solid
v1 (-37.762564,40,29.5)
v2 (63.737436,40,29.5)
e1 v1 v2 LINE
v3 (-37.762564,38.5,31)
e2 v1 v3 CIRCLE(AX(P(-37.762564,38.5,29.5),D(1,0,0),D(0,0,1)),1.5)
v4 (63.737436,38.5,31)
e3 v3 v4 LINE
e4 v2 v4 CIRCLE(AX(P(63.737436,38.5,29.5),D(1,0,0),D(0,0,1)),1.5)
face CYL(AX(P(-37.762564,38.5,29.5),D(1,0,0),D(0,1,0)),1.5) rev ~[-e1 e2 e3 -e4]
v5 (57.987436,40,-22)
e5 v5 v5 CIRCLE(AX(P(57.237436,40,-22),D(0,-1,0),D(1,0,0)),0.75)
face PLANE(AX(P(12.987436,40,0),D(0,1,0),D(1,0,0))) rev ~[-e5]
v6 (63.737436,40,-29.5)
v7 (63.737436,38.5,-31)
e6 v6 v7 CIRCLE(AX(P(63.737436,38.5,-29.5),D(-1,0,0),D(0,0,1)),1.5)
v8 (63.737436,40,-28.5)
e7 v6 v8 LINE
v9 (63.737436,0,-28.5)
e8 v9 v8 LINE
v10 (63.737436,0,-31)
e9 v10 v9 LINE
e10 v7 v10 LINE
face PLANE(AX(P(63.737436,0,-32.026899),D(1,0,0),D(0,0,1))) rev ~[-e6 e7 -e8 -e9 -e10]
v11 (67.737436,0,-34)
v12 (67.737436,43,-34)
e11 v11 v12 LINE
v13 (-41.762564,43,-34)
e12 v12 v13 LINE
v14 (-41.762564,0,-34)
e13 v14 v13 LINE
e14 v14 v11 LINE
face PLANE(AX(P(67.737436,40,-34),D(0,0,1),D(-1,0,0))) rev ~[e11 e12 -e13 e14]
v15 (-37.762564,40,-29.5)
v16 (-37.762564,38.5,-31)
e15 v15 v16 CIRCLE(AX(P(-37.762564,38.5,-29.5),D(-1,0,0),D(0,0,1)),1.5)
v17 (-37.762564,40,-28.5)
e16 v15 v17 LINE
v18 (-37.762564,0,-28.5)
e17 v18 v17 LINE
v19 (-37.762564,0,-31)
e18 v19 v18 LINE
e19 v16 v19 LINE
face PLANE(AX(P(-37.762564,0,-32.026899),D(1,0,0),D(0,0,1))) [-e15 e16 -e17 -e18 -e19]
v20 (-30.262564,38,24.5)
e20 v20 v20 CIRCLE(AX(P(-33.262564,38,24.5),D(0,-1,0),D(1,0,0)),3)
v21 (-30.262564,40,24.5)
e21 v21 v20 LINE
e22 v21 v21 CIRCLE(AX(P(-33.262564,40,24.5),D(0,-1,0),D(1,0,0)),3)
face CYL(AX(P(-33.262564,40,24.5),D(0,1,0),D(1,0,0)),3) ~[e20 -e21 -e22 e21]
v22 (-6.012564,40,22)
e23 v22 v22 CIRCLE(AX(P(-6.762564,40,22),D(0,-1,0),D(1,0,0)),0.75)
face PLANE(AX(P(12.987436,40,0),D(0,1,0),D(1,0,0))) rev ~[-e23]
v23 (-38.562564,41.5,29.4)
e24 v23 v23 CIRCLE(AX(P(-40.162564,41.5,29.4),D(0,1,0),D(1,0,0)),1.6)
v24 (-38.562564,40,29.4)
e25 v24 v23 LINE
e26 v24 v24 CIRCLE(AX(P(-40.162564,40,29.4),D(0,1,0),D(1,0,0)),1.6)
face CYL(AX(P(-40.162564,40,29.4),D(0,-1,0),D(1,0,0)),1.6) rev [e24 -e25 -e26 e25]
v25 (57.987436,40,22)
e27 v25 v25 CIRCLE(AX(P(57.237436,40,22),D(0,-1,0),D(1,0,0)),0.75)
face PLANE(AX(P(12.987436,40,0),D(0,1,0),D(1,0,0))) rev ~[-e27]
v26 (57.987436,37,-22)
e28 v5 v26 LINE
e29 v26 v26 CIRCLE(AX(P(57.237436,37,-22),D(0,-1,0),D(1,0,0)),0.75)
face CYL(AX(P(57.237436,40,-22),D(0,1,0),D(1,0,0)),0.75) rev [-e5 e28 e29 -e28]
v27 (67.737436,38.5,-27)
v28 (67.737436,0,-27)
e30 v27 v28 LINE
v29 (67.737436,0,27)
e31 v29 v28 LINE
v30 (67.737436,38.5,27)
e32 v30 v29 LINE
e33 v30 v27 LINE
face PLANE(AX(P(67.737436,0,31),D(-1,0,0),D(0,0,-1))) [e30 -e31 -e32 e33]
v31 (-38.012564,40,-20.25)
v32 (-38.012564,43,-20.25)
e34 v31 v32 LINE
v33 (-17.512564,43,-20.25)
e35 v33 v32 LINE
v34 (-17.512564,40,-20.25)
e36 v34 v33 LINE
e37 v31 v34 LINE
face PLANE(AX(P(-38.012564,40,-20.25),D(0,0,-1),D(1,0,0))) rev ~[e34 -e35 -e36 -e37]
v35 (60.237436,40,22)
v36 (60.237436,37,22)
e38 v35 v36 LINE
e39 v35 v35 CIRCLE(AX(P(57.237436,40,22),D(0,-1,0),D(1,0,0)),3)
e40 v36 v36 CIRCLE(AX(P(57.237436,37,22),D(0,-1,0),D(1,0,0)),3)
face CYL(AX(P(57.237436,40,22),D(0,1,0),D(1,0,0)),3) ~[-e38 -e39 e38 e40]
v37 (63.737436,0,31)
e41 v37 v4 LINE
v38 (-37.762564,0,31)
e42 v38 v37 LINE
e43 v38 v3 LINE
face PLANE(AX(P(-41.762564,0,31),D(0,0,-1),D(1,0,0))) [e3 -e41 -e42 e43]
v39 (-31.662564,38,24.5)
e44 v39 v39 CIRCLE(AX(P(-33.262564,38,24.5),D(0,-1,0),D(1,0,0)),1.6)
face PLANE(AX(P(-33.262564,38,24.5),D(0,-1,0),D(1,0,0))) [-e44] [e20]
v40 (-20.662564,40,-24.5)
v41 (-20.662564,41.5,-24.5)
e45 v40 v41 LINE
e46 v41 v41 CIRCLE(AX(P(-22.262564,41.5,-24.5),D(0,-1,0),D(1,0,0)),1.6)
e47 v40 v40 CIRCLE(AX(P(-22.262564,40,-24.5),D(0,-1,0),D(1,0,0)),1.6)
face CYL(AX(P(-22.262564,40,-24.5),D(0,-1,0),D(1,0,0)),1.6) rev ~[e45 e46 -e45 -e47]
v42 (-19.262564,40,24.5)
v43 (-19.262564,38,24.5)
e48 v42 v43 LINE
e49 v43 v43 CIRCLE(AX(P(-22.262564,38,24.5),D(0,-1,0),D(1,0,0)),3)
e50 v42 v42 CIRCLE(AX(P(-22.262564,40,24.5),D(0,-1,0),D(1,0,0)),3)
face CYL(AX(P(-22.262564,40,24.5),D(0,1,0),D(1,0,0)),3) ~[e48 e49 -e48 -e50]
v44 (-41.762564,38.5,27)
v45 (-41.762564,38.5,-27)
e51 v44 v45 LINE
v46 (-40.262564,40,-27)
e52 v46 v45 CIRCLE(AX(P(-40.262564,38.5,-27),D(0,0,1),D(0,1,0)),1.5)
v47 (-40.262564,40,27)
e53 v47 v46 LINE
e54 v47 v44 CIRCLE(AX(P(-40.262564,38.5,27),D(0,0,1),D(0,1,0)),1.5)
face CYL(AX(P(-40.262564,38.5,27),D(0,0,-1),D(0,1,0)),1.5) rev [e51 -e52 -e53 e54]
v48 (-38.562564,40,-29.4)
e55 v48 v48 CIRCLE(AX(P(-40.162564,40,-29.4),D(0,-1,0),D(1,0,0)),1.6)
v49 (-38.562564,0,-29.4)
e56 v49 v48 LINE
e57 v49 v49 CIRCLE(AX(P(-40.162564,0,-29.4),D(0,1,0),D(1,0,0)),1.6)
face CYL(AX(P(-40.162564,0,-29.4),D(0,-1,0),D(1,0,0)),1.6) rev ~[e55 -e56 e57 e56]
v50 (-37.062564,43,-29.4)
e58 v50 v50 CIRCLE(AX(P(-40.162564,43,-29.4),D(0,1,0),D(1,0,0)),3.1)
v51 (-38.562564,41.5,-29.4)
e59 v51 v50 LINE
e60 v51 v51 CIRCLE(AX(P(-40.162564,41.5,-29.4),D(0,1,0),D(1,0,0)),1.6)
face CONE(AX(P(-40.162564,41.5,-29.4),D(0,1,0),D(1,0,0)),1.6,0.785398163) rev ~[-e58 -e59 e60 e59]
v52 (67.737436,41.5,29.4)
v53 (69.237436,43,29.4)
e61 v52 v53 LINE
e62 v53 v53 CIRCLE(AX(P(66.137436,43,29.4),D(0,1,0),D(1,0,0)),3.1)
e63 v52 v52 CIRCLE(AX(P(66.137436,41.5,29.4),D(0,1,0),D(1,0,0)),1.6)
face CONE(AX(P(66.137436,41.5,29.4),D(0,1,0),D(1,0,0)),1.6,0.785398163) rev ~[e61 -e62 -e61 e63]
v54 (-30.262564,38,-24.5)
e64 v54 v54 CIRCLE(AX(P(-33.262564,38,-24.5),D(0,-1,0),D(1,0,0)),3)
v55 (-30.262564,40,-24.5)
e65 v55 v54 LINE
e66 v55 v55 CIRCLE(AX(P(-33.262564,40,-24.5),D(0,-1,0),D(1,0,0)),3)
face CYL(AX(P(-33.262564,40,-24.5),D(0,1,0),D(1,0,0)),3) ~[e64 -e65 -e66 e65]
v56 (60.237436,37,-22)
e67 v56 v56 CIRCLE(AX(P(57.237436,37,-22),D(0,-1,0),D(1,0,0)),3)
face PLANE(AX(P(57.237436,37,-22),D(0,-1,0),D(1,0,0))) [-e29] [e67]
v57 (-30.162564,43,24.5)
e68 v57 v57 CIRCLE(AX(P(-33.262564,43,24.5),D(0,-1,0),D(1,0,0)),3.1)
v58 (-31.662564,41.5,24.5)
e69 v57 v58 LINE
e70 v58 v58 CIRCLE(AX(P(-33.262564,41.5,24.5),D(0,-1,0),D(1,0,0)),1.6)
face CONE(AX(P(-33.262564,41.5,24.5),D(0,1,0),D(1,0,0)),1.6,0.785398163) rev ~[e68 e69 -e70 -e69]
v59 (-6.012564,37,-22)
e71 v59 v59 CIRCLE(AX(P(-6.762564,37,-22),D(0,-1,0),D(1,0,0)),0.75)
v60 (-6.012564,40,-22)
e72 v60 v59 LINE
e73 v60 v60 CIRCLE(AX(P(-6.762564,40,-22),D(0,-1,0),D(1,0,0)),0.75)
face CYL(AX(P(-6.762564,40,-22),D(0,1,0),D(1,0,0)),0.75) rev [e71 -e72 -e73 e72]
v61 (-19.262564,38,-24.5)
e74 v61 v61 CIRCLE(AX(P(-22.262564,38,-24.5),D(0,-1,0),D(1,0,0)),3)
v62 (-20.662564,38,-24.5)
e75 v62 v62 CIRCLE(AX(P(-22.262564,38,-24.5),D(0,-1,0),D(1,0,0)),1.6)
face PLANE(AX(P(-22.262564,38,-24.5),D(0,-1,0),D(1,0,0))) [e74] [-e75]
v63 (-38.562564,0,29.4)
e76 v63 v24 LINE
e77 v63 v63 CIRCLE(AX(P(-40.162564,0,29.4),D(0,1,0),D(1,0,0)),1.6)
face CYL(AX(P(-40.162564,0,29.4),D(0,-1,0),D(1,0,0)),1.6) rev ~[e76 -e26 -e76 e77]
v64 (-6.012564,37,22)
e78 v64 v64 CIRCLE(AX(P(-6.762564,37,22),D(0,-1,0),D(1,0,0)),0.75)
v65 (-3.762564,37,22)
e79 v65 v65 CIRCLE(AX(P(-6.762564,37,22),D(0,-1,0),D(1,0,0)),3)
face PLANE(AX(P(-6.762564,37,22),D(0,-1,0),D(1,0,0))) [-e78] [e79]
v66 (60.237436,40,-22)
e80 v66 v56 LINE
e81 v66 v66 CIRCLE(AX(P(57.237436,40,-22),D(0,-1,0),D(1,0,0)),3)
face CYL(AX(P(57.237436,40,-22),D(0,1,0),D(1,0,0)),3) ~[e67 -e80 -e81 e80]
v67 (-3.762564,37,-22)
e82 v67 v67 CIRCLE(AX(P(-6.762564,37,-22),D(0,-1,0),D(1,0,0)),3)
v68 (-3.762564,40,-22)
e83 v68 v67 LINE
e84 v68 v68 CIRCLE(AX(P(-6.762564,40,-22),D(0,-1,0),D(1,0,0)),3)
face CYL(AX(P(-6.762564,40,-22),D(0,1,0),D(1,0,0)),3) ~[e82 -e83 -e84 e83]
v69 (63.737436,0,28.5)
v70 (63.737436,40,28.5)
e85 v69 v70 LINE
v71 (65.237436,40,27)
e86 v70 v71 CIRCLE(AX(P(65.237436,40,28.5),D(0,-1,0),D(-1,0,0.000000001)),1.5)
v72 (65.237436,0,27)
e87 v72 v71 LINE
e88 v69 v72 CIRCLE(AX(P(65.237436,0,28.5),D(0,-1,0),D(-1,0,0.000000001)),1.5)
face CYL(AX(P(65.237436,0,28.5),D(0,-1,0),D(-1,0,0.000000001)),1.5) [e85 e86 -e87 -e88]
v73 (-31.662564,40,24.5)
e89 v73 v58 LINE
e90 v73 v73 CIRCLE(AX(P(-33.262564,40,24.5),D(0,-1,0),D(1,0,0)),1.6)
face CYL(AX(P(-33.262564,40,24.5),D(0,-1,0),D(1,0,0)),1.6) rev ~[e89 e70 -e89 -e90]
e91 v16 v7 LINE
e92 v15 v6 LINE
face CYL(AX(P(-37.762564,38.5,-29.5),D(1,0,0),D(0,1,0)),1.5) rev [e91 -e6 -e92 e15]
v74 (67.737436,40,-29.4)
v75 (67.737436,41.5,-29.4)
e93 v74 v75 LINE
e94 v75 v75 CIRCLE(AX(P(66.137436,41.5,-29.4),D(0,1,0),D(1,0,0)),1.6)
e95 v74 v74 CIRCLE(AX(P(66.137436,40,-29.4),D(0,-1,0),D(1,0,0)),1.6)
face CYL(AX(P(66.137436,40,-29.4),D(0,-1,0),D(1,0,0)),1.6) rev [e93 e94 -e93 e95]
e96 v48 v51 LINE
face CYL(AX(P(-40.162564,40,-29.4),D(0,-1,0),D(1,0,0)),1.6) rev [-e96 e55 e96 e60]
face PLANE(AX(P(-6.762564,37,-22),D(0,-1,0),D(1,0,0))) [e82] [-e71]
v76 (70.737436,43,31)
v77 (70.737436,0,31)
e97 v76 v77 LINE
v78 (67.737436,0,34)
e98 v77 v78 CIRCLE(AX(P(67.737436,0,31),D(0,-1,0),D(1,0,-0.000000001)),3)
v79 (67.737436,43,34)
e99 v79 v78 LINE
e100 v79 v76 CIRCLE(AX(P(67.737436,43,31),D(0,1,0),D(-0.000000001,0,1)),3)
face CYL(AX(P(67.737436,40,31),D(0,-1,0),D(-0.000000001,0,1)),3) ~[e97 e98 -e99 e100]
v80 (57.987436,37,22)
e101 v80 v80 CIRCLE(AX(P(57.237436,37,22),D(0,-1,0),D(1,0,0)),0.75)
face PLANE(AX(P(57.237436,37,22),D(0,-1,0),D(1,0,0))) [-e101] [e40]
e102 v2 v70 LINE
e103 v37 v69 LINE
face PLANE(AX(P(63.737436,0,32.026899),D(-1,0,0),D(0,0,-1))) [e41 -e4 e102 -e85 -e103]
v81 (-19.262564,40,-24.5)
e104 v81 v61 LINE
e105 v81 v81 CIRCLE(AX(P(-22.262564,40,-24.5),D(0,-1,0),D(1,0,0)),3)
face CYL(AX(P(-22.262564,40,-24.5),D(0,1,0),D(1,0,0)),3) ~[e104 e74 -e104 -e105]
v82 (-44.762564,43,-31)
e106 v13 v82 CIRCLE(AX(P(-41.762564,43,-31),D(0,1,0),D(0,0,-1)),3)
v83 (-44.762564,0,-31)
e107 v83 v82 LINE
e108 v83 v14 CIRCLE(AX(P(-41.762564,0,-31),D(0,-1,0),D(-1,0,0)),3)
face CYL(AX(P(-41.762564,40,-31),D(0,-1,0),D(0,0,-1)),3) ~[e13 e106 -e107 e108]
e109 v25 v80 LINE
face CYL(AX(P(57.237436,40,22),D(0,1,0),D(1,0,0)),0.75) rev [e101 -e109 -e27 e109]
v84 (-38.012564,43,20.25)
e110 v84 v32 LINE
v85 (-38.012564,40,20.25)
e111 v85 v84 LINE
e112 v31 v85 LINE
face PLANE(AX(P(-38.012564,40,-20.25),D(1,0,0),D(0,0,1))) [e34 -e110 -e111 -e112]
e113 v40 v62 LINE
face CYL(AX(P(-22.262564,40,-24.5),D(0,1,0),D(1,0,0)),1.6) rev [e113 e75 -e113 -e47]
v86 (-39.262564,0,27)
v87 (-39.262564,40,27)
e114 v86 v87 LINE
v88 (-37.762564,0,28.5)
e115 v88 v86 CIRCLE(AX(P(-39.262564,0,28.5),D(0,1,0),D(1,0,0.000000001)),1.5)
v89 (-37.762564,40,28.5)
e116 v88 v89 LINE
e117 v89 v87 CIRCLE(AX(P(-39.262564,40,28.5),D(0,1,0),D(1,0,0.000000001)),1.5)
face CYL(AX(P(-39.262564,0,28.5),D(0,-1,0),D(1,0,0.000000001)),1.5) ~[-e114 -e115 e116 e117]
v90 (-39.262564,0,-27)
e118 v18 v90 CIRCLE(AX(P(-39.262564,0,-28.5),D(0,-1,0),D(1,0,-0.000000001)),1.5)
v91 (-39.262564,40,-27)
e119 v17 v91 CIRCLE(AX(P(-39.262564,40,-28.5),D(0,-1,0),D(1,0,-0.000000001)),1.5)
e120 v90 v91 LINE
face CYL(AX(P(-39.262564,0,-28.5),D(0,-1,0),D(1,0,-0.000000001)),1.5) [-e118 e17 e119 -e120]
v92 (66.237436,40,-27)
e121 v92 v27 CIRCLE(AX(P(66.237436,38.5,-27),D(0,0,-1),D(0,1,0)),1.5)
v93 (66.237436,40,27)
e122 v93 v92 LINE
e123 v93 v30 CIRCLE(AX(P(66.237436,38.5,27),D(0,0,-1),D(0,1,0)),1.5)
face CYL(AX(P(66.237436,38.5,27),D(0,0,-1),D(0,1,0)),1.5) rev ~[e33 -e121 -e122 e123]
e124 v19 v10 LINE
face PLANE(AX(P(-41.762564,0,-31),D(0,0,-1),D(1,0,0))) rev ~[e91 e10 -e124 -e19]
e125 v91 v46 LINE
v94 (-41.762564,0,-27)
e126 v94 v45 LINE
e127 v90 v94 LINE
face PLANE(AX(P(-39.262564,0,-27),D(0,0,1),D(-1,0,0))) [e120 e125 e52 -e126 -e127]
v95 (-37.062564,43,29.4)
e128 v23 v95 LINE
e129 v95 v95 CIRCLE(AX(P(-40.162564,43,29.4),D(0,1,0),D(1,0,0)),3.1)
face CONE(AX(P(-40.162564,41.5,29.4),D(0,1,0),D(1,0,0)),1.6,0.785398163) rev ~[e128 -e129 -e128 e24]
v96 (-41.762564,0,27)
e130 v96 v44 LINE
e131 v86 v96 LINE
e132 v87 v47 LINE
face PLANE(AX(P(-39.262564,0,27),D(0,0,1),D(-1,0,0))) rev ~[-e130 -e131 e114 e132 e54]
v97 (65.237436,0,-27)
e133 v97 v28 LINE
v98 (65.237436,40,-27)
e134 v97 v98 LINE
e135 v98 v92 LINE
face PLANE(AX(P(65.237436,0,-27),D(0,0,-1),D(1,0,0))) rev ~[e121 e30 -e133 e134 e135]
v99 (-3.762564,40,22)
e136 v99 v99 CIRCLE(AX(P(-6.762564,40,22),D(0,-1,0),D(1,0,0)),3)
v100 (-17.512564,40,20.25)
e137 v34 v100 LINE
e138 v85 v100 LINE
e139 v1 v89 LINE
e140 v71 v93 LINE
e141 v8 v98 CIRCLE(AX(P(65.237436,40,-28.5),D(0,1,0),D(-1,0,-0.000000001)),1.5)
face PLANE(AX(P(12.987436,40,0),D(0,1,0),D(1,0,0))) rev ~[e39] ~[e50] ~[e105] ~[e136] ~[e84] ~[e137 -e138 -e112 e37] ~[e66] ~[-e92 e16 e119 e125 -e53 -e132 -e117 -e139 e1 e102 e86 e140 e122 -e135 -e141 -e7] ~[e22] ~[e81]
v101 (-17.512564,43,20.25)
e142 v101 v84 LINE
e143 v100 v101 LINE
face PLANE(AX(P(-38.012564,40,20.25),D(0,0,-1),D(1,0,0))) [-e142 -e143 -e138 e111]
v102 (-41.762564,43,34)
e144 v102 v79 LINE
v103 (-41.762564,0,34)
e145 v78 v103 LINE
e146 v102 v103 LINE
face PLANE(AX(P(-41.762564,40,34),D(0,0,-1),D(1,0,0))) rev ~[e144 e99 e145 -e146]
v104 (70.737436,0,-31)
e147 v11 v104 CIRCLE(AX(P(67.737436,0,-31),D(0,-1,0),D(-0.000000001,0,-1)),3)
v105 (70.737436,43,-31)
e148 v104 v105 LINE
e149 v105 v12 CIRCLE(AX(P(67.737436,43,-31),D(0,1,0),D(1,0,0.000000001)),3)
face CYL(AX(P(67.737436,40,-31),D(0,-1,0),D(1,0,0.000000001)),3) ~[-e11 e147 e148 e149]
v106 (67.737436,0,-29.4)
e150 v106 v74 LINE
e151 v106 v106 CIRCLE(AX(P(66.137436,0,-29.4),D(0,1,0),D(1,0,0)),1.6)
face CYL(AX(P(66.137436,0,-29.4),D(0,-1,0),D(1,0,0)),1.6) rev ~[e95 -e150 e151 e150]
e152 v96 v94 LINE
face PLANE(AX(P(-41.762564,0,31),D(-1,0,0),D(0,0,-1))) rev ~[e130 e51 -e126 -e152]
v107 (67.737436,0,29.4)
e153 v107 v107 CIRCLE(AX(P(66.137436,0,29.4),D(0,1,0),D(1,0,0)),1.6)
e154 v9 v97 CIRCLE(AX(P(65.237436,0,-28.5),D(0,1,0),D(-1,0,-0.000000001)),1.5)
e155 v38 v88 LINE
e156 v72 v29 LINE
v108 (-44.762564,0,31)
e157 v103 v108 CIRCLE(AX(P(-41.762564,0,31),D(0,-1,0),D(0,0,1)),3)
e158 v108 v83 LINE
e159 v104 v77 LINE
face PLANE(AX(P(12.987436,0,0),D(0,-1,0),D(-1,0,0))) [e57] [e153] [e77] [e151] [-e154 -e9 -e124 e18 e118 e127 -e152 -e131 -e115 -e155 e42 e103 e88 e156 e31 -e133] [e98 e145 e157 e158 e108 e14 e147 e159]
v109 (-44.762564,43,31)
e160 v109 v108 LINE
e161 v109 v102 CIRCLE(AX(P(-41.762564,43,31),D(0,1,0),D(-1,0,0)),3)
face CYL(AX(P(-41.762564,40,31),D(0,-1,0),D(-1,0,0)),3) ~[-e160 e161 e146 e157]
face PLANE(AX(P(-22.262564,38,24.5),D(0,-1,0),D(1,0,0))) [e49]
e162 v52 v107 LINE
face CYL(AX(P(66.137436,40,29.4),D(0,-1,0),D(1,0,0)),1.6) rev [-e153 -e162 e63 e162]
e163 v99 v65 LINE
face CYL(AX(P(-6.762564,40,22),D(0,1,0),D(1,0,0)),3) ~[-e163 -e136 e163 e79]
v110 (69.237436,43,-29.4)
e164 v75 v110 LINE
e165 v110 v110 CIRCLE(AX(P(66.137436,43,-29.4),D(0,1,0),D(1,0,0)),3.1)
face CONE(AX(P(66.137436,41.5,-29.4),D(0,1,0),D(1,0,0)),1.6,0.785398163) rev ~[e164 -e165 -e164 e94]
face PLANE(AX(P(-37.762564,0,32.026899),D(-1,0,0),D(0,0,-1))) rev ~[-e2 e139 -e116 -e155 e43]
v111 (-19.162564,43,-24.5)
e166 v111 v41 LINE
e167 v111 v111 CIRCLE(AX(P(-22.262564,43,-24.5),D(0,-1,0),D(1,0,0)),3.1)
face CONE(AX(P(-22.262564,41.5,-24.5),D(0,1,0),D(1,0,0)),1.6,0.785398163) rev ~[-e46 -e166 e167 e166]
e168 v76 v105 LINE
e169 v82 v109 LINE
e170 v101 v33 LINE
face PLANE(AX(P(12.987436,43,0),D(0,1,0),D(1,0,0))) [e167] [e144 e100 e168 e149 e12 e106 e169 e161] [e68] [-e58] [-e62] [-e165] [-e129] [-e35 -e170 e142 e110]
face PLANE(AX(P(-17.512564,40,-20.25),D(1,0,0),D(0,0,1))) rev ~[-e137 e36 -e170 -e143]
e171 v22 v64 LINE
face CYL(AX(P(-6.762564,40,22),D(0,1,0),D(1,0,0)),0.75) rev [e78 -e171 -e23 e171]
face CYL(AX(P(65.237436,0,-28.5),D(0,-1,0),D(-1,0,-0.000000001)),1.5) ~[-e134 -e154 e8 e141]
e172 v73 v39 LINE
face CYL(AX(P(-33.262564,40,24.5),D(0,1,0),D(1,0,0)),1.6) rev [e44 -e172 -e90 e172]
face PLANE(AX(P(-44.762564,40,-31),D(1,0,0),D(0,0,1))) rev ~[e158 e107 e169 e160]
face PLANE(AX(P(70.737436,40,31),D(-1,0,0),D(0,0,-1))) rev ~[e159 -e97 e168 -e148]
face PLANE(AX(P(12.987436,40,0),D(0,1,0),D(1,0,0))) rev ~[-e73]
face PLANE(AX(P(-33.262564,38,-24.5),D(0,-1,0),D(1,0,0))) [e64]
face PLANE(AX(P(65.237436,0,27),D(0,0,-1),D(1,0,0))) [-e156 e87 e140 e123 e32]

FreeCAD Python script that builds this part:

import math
import FreeCAD as App
import Part
import Sketcher
from FreeCAD import Vector
Q = App.Units.Quantity


def edges_at(feature, points):
    """Names of the edges that pass closest to the given points."""
    edges = feature.Shape.Edges
    near = lambda p: min(range(len(edges)), key=lambda i: edges[i].distToShape(Part.Vertex(*p))[0])
    return sorted({f"Edge{near(p) + 1}" for p in points})


def add_polygon(sketch, points):
    """Adds a closed chain of lines whose ends are joined by coincident constraints."""
    first, n = sketch.GeometryCount, len(points)
    for a, b in zip(points, points[1:] + points[:1]):
        sketch.addGeometry(Part.LineSegment(App.Vector(*a, 0), App.Vector(*b, 0)), False)
    for i in range(n):
        sketch.addConstraint(Sketcher.Constraint("Coincident", first + i, 2, first + (i + 1) % n, 1))

doc = App.newDocument("Part")
params = doc.addObject("Spreadsheet::Sheet", "Params")
for row, (alias, value) in enumerate([
    ("sketch1_radius", "3 mm"),
    ("sketch1_height", "62 mm"),
    ("sketch1_width", "109.5 mm"),
    ("pad1_length", "40 mm"),
    ("sketch2_diameter", "3.2 mm"),
    ("sketch2_radius", "1.5 mm"),
    ("pad2_length", "40 mm"),
    ("sketch3_radius", "3 mm"),
    ("sketch3_diameter", "3.2 mm"),
    ("sketch3_height", "62 mm"),
    ("sketch3_width", "109.5 mm"),
    ("pad3_length", "3 mm"),
    ("chamfer_size", "1.5 mm"),
    ("sketch4_diameter", "6 mm"),
    ("sketch4_diameter2", "1.5 mm"),
    ("pad4_length", "3 mm"),
    ("sketch5_diameter", "3.2 mm"),
    ("sketch5_width", "20.5 mm"),
    ("sketch5_height", "40.5 mm"),
    ("chamfer2_size", "1.5 mm"),
    ("fillet_radius", "1.5 mm"),
    ("fillet2_radius", "1.5 mm"),
    ("sketch6_diameter", "6 mm"),
    ("sketch6_diameter2", "3.2 mm"),
    ("pad5_length", "2 mm"),
], start=1):
    params.set(f"A{row}", alias)
    params.set(f"B{row}", "=" + value)
    params.setAlias(f"B{row}", alias)

body = doc.addObject("PartDesign::Body", "Body")

# Sketch on XZ plane
sketch1 = body.newObject("Sketcher::SketchObject", "Sketch")
sketch1.AttachmentSupport = (doc.getObject("XZ_Plane"), [""])
sketch1.MapMode = "FlatFace"
sketch1.addGeometry(Part.LineSegment(Vector(67.7, -34, 0), Vector(-41.8, -34, 0)), False)  # 0
sketch1.addGeometry(Part.ArcOfCircle(Part.Circle(Vector(-41.8, -31, 0), Vector(0, 0, 1), 3), math.radians(180), math.radians(270)), False)  # 1
sketch1.addGeometry(Part.LineSegment(Vector(-44.8, -31, 0), Vector(-44.8, 31, 0)), False)  # 2
sketch1.addGeometry(Part.ArcOfCircle(Part.Circle(Vector(-41.8, 31, 0), Vector(0, 0, 1), 3), math.radians(90), math.radians(180)), False)  # 3
sketch1.addGeometry(Part.LineSegment(Vector(-41.8, 34, 0), Vector(67.7, 34, 0)), False)  # 4
sketch1.addGeometry(Part.ArcOfCircle(Part.Circle(Vector(67.7, 31, 0), Vector(0, 0, 1), 3), math.radians(0), math.radians(90)), False)  # 5
sketch1.addGeometry(Part.LineSegment(Vector(70.7, 31, 0), Vector(70.7, -31, 0)), False)  # 6
sketch1.addGeometry(Part.ArcOfCircle(Part.Circle(Vector(67.7, -31, 0), Vector(0, 0, 1), 3), math.radians(-90), math.radians(0)), False)  # 7
add_polygon(sketch1, [(-41.8, 31), (-41.8, -31), (67.7, -31), (67.7, 31)])  # lines 8-11
sketch1.addConstraint([
    Sketcher.Constraint("Tangent", 0, 2, 1, 2),
    Sketcher.Constraint("Tangent", 1, 1, 2, 1),
    Sketcher.Constraint("Tangent", 2, 2, 3, 2),
    Sketcher.Constraint("Tangent", 3, 1, 4, 1),
    Sketcher.Constraint("Tangent", 4, 2, 5, 2),
    Sketcher.Constraint("Tangent", 5, 1, 6, 1),
    Sketcher.Constraint("Tangent", 6, 2, 7, 2),
    Sketcher.Constraint("Tangent", 7, 1, 0, 1),
    Sketcher.Constraint("Horizontal", 0),
    Sketcher.Constraint("Vertical", 2),
    Sketcher.Constraint("Horizontal", 4),
    Sketcher.Constraint("Vertical", 6),
    Sketcher.Constraint("Vertical", 8),
    Sketcher.Constraint("Horizontal", 9),
    Sketcher.Constraint("Vertical", 10),
    Sketcher.Constraint("Horizontal", 11),
    Sketcher.Constraint("Coincident", 8, 2, 1, 3),
    Sketcher.Constraint("Coincident", 9, 2, 7, 3),
    Sketcher.Constraint("Coincident", 10, 2, 5, 3),
    Sketcher.Constraint("Equal", 1, 3),
    Sketcher.Constraint("Radius", 1, Q("3 mm")),
    Sketcher.Constraint("DistanceY", 2, 1, 2, 2, Q("62 mm")),
    Sketcher.Constraint("DistanceX", 0, 2, 0, 1, Q("109.5 mm")),
    Sketcher.Constraint("DistanceY", 1, 3, -1, 1, Q("31 mm")),
    Sketcher.Constraint("DistanceX", 1, 3, -1, 1, Q("41.762564 mm")),
])
sketch1.setExpression("Constraints[24]", "Params.sketch1_radius")
sketch1.setExpression("Constraints[25]", "Params.sketch1_height")
sketch1.setExpression("Constraints[26]", "Params.sketch1_width")
pad1 = body.newObject("PartDesign::Pad", "Pad")
pad1.Profile = sketch1
pad1.setExpression("Length", "Params.pad1_length")
pad1.Reversed = True

# Sketch on XZ plane
sketch2 = body.newObject("Sketcher::SketchObject", "Sketch001")
sketch2.AttachmentSupport = (doc.getObject("XZ_Plane"), [""])
sketch2.MapMode = "FlatFace"
sketch2.addGeometry([
    Part.LineSegment(Vector(-43.5, 32, 0), Vector(-43.5, 27, 0)),  # 0
    Part.LineSegment(Vector(-43.5, 27, 0), Vector(-39.3, 27, 0)),  # 1
    Part.ArcOfCircle(Part.Circle(Vector(-39.3, 28.5, 0), Vector(0, 0, 1), 1.5), math.radians(-90), math.radians(0)),  # 2
    Part.LineSegment(Vector(-37.8, 28.5, 0), Vector(-37.8, 32, 0)),  # 3
    Part.LineSegment(Vector(-37.8, 32, 0), Vector(-43.5, 32, 0)),  # 4
    Part.Circle(Vector(-40.2, 29.4, 0), Vector(0, 0, 1), 1.6),  # 5
    Part.LineSegment(Vector(-43.5, -32, 0), Vector(-37.8, -32, 0)),  # 6
    Part.LineSegment(Vector(-37.8, -32, 0), Vector(-37.8, -28.5, 0)),  # 7
    Part.ArcOfCircle(Part.Circle(Vector(-39.3, -28.5, 0), Vector(0, 0, 1), 1.5), math.radians(0), math.radians(90)),  # 8
    Part.LineSegment(Vector(-39.3, -27, 0), Vector(-43.5, -27, 0)),  # 9
    Part.LineSegment(Vector(-43.5, -27, 0), Vector(-43.5, -32, 0)),  # 10
    Part.Circle(Vector(-40.2, -29.4, 0), Vector(0, 0, 1), 1.6),  # 11
    Part.LineSegment(Vector(69.5, -32, 0), Vector(69.5, -27, 0)),  # 12
    Part.LineSegment(Vector(69.5, -27, 0), Vector(65.2, -27, 0)),  # 13
    Part.ArcOfCircle(Part.Circle(Vector(65.2, -28.5, 0), Vector(0, 0, 1), 1.5), math.radians(90), math.radians(180)),  # 14
    Part.LineSegment(Vector(63.7, -28.5, 0), Vector(63.7, -32, 0)),  # 15
    Part.LineSegment(Vector(63.7, -32, 0), Vector(69.5, -32, 0)),  # 16
    Part.Circle(Vector(66.1, -29.4, 0), Vector(0, 0, 1), 1.6),  # 17
    Part.LineSegment(Vector(69.5, 32, 0), Vector(63.7, 32, 0)),  # 18
    Part.LineSegment(Vector(63.7, 32, 0), Vector(63.7, 28.5, 0)),  # 19
    Part.ArcOfCircle(Part.Circle(Vector(65.2, 28.5, 0), Vector(0, 0, 1), 1.5), math.radians(180), math.radians(270)),  # 20
    Part.LineSegment(Vector(65.2, 27, 0), Vector(69.5, 27, 0)),  # 21
    Part.LineSegment(Vector(69.5, 27, 0), Vector(69.5, 32, 0)),  # 22
    Part.Circle(Vector(66.1, 29.4, 0), Vector(0, 0, 1), 1.6),  # 23
], False)
sketch2.addConstraint([
    Sketcher.Constraint("Coincident", 0, 2, 1, 1),
    Sketcher.Constraint("Tangent", 1, 2, 2, 1),
    Sketcher.Constraint("Tangent", 2, 2, 3, 1),
    Sketcher.Constraint("Coincident", 3, 2, 4, 1),
    Sketcher.Constraint("Coincident", 4, 2, 0, 1),
    Sketcher.Constraint("Coincident", 6, 2, 7, 1),
    Sketcher.Constraint("Tangent", 7, 2, 8, 1),
    Sketcher.Constraint("Tangent", 8, 2, 9, 1),
    Sketcher.Constraint("Coincident", 9, 2, 10, 1),
    Sketcher.Constraint("Coincident", 10, 2, 6, 1),
    Sketcher.Constraint("Coincident", 12, 2, 13, 1),
    Sketcher.Constraint("Tangent", 13, 2, 14, 1),
    Sketcher.Constraint("Tangent", 14, 2, 15, 1),
    Sketcher.Constraint("Coincident", 15, 2, 16, 1),
    Sketcher.Constraint("Coincident", 16, 2, 12, 1),
    Sketcher.Constraint("Coincident", 18, 2, 19, 1),
    Sketcher.Constraint("Tangent", 19, 2, 20, 1),
    Sketcher.Constraint("Tangent", 20, 2, 21, 1),
    Sketcher.Constraint("Coincident", 21, 2, 22, 1),
    Sketcher.Constraint("Coincident", 22, 2, 18, 1),
    Sketcher.Constraint("Vertical", 0),
    Sketcher.Constraint("Horizontal", 1),
    Sketcher.Constraint("Vertical", 3),
    Sketcher.Constraint("Horizontal", 4),
    Sketcher.Constraint("Horizontal", 6),
    Sketcher.Constraint("Vertical", 7),
    Sketcher.Constraint("Horizontal", 9),
    Sketcher.Constraint("Vertical", 10),
    Sketcher.Constraint("Vertical", 12),
    Sketcher.Constraint("Horizontal", 13),
    Sketcher.Constraint("Vertical", 15),
    Sketcher.Constraint("Horizontal", 16),
    Sketcher.Constraint("Horizontal", 18),
    Sketcher.Constraint("Vertical", 19),
    Sketcher.Constraint("Horizontal", 21),
    Sketcher.Constraint("Vertical", 22),
    Sketcher.Constraint("Equal", 2, 8),
    Sketcher.Constraint("Equal", 5, 11),
    Sketcher.Constraint("Equal", 8, 14),
    Sketcher.Constraint("Equal", 11, 17),
    Sketcher.Constraint("Equal", 14, 20),
    Sketcher.Constraint("Equal", 17, 23),
    Sketcher.Constraint("Symmetric", 2, 3, 8, 3, -1),
    Sketcher.Constraint("Symmetric", 5, 3, 11, 3, -1),
    Sketcher.Constraint("Symmetric", 14, 3, 20, 3, -1),
    Sketcher.Constraint("Symmetric", 17, 3, 23, 3, -1),
    Sketcher.Constraint("Symmetric", 4, 2, 10, 2, -1),
    Sketcher.Constraint("Symmetric", 16, 2, 22, 2, -1),
    Sketcher.Constraint("Horizontal", 8, 3, 14, 3),
    Sketcher.Constraint("Horizontal", 11, 3, 17, 3),
    Sketcher.Constraint("Horizontal", 10, 2, 15, 2),
    Sketcher.Constraint("Equal", 9, 13),
    Sketcher.Constraint("Diameter", 5, Q("3.2 mm")),
    Sketcher.Constraint("Radius", 2, Q("1.5 mm")),
    Sketcher.Constraint("DistanceY", -1, 1, 0, 2, Q("27 mm")),
    Sketcher.Constraint("DistanceY", -1, 1, 5, 3, Q("29.4 mm")),
    Sketcher.Constraint("DistanceX", 5, 3, 2, 3, Q("0.9 mm")),
    Sketcher.Constraint("DistanceX", 8, 3, 14, 3, Q("104.5 mm")),
    Sketcher.Constraint("DistanceX", 14, 3, 17, 3, Q("0.9 mm")),
    Sketcher.Constraint("DistanceY", 0, 2, 0, 1, Q("5.026899 mm")),
    Sketcher.Constraint("DistanceX", 1, 1, 1, 2, Q("4.236053 mm")),
    Sketcher.Constraint("DistanceX", -1, 1, 12, 2, Q("69.473489 mm")),
])
sketch2.setExpression("Constraints[52]", "Params.sketch2_diameter")
sketch2.setExpression("Constraints[53]", "Params.sketch2_radius")
pad2 = body.newObject("PartDesign::Pad", "Pad001")
pad2.Profile = sketch2
pad2.setExpression("Length", "Params.pad2_length")
pad2.Reversed = True

# Sketch on XZ plane
sketch3 = body.newObject("Sketcher::SketchObject", "Sketch002")
sketch3.AttachmentSupport = (doc.getObject("XZ_Plane"), [""])
sketch3.MapMode = "FlatFace"
sketch3.AttachmentOffset = App.Placement(Vector(0, 0, -40), App.Rotation())
sketch3.addGeometry([
    Part.LineSegment(Vector(70.7, 31, 0), Vector(70.7, -31, 0)),  # 0
    Part.ArcOfCircle(Part.Circle(Vector(67.7, -31, 0), Vector(0, 0, 1), 3), math.radians(-90), math.radians(0)),  # 1
    Part.LineSegment(Vector(67.7, -34, 0), Vector(-41.8, -34, 0)),  # 2
    Part.ArcOfCircle(Part.Circle(Vector(-41.8, -31, 0), Vector(0, 0, 1), 3), math.radians(180), math.radians(270)),  # 3
    Part.LineSegment(Vector(-44.8, -31, 0), Vector(-44.8, 31, 0)),  # 4
    Part.ArcOfCircle(Part.Circle(Vector(-41.8, 31, 0), Vector(0, 0, 1), 3), math.radians(90), math.radians(180)),  # 5
    Part.LineSegment(Vector(-41.8, 34, 0), Vector(67.7, 34, 0)),  # 6
    Part.ArcOfCircle(Part.Circle(Vector(67.7, 31, 0), Vector(0, 0, 1), 3), math.radians(0), math.radians(90)),  # 7
    Part.Circle(Vector(-40.2, 29.4, 0), Vector(0, 0, 1), 1.6),  # 8
    Part.Circle(Vector(66.1, 29.4, 0), Vector(0, 0, 1), 1.6),  # 9
    Part.Circle(Vector(-40.2, -29.4, 0), Vector(0, 0, 1), 1.6),  # 10
    Part.Circle(Vector(66.1, -29.4, 0), Vector(0, 0, 1), 1.6),  # 11
], False)
sketch3.addConstraint([
    Sketcher.Constraint("Tangent", 0, 2, 1, 2),
    Sketcher.Constraint("Tangent", 1, 1, 2, 1),
    Sketcher.Constraint("Tangent", 2, 2, 3, 2),
    Sketcher.Constraint("Tangent", 3, 1, 4, 1),
    Sketcher.Constraint("Tangent", 4, 2, 5, 2),
    Sketcher.Constraint("Tangent", 5, 1, 6, 1),
    Sketcher.Constraint("Tangent", 6, 2, 7, 2),
    Sketcher.Constraint("Tangent", 7, 1, 0, 1),
    Sketcher.Constraint("Vertical", 0),
    Sketcher.Constraint("Horizontal", 2),
    Sketcher.Constraint("Vertical", 4),
    Sketcher.Constraint("Horizontal", 6),
    Sketcher.Constraint("Equal", 1, 3),
    Sketcher.Constraint("Equal", 3, 5),
    Sketcher.Constraint("Equal", 5, 7),
    Sketcher.Constraint("Equal", 8, 9),
    Sketcher.Constraint("Equal", 9, 10),
    Sketcher.Constraint("Equal", 10, 11),
    Sketcher.Constraint("Symmetric", 8, 3, 10, 3, -1),
    Sketcher.Constraint("Symmetric", 9, 3, 11, 3, -1),
    Sketcher.Constraint("Horizontal", 8, 3, 9, 3),
    Sketcher.Constraint("Radius", 1, Q("3 mm")),
    Sketcher.Constraint("Diameter", 8, Q("3.2 mm")),
    Sketcher.Constraint("DistanceY", 0, 2, 0, 1, Q("62 mm")),
    Sketcher.Constraint("DistanceX", 2, 2, 2, 1, Q("109.5 mm")),
    Sketcher.Constraint("DistanceY", 1, 3, -1, 1, Q("31 mm")),
    Sketcher.Constraint("DistanceY", -1, 1, 8, 3, Q("29.4 mm")),
    Sketcher.Constraint("DistanceX", 5, 3, 8, 3, Q("1.6 mm")),
    Sketcher.Constraint("DistanceX", 9, 3, 7, 3, Q("1.6 mm")),
    Sketcher.Constraint("DistanceX", -1, 1, 1, 3, Q("67.737436 mm")),
])
sketch3.setExpression("Constraints[21]", "Params.sketch3_radius")
sketch3.setExpression("Constraints[22]", "Params.sketch3_diameter")
sketch3.setExpression("Constraints[23]", "Params.sketch3_height")
sketch3.setExpression("Constraints[24]", "Params.sketch3_width")
pad3 = body.newObject("PartDesign::Pad", "Pad002")
pad3.Profile = sketch3
pad3.setExpression("Length", "Params.pad3_length")
pad3.Reversed = True
doc.recompute()

chamfer = body.newObject("PartDesign::Chamfer", "Chamfer")
chamfer.Base = (pad3, edges_at(pad3, [
    (64.537, 43, -29.4),
    (64.537, 43, 29.4),
    (-41.763, 43, 29.4),
    (-41.763, 43, -29.4),
]))
chamfer.setExpression("Size", "Params.chamfer_size")

# Sketch on XZ plane
sketch4 = body.newObject("Sketcher::SketchObject", "Sketch003")
sketch4.AttachmentSupport = (doc.getObject("XZ_Plane"), [""])
sketch4.MapMode = "FlatFace"
sketch4.AttachmentOffset = App.Placement(Vector(0, 0, -40), App.Rotation())
sketch4.addGeometry([
    Part.Circle(Vector(-6.8, 22, 0), Vector(0, 0, 1), 3),  # 0
    Part.Circle(Vector(-6.8, 22, 0), Vector(0, 0, 1), 0.8),  # 1
    Part.Circle(Vector(57.2, 22, 0), Vector(0, 0, 1), 3),  # 2
    Part.Circle(Vector(57.2, 22, 0), Vector(0, 0, 1), 0.8),  # 3
    Part.Circle(Vector(57.2, -22, 0), Vector(0, 0, 1), 3),  # 4
    Part.Circle(Vector(57.2, -22, 0), Vector(0, 0, 1), 0.8),  # 5
    Part.Circle(Vector(-6.8, -22, 0), Vector(0, 0, 1), 3),  # 6
    Part.Circle(Vector(-6.8, -22, 0), Vector(0, 0, 1), 0.8),  # 7
], False)
sketch4.addConstraint([
    Sketcher.Constraint("Coincident", 1, 3, 0, 3),
    Sketcher.Constraint("Coincident", 3, 3, 2, 3),
    Sketcher.Constraint("Coincident", 5, 3, 4, 3),
    Sketcher.Constraint("Coincident", 7, 3, 6, 3),
    Sketcher.Constraint("Equal", 0, 2),
    Sketcher.Constraint("Equal", 1, 3),
    Sketcher.Constraint("Equal", 2, 4),
    Sketcher.Constraint("Equal", 3, 5),
    Sketcher.Constraint("Equal", 4, 6),
    Sketcher.Constraint("Equal", 5, 7),
    Sketcher.Constraint("Symmetric", 2, 3, 4, 3, -1),
    Sketcher.Constraint("Symmetric", 0, 3, 6, 3, -1),
    Sketcher.Constraint("Horizontal", 1, 3, 2, 3),
    Sketcher.Constraint("Diameter", 0, Q("6 mm")),
    Sketcher.Constraint("Diameter", 1, Q("1.5 mm")),
    Sketcher.Constraint("DistanceY", -1, 1, 0, 3, Q("22 mm")),
    Sketcher.Constraint("DistanceX", 0, 3, 2, 3, Q("64 mm")),
    Sketcher.Constraint("DistanceX", 0, 3, -1, 1, Q("6.762564 mm")),
])
sketch4.setExpression("Constraints[13]", "Params.sketch4_diameter")
sketch4.setExpression("Constraints[14]", "Params.sketch4_diameter2")
pad4 = body.newObject("PartDesign::Pad", "Pad003")
pad4.Profile = sketch4
pad4.setExpression("Length", "Params.pad4_length")

# Sketch on XZ plane
sketch5 = body.newObject("Sketcher::SketchObject", "Sketch004")
sketch5.AttachmentSupport = (doc.getObject("XZ_Plane"), [""])
sketch5.MapMode = "FlatFace"
sketch5.AttachmentOffset = App.Placement(Vector(0, 0, -40), App.Rotation())
sketch5.addGeometry(Part.Circle(Vector(-33.3, 24.5, 0), Vector(0, 0, 1), 1.6), False)  # 0
sketch5.addGeometry(Part.Circle(Vector(-22.3, -24.5, 0), Vector(0, 0, 1), 1.6), False)  # 1
add_polygon(sketch5, [(-38, 20.2), (-38, -20.2), (-17.5, -20.2), (-17.5, 20.2)])  # lines 2-5
sketch5.addConstraint([
    Sketcher.Constraint("Vertical", 2),
    Sketcher.Constraint("Horizontal", 3),
    Sketcher.Constraint("Vertical", 4),
    Sketcher.Constraint("Horizontal", 5),
    Sketcher.Constraint("Equal", 0, 1),
    Sketcher.Constraint("Diameter", 0, Q("3.2 mm")),
    Sketcher.Constraint("DistanceX", 3, 1, 3, 2, Q("20.5 mm")),
    Sketcher.Constraint("DistanceY", 2, 2, 2, 1, Q("40.5 mm")),
    Sketcher.Constraint("DistanceX", 0, 3, 1, 3, Q("11 mm")),
    Sketcher.Constraint("DistanceY", 1, 3, 0, 3, Q("49 mm")),
    Sketcher.Constraint("DistanceY", -1, 1, 0, 3, Q("24.5 mm")),
    Sketcher.Constraint("DistanceY", 2, 2, -1, 1, Q("20.25 mm")),
    Sketcher.Constraint("DistanceX", 2, 2, 1, 3, Q("15.75 mm")),
    Sketcher.Constraint("DistanceX", 0, 3, -1, 1, Q("33.262564 mm")),
])
sketch5.setExpression("Constraints[9]", "Params.sketch5_diameter")
sketch5.setExpression("Constraints[10]", "Params.sketch5_width")
sketch5.setExpression("Constraints[11]", "Params.sketch5_height")
pocket1 = body.newObject("PartDesign::Pocket", "Pocket")
pocket1.Profile = sketch5
pocket1.Type = "ThroughAll"
doc.recompute()

chamfer2 = body.newObject("PartDesign::Chamfer", "Chamfer001")
chamfer2.Base = (pocket1, edges_at(pocket1, [(-34.863, 43, 24.5), (-23.863, 43, -24.5)]))
chamfer2.setExpression("Size", "Params.chamfer2_size")
doc.recompute()

fillet = body.newObject("PartDesign::Fillet", "Fillet")
fillet.Base = (chamfer2, edges_at(chamfer2, [(12.987, 40, 31)]))
fillet.setExpression("Radius", "Params.fillet_radius")
doc.recompute()

fillet2 = body.newObject("PartDesign::Fillet", "Fillet001")
fillet2.Base = (fillet, edges_at(fillet, [(67.737, 40, 0), (-41.763, 40, 0), (12.987, 40, -31)]))
fillet2.setExpression("Radius", "Params.fillet2_radius")

# Sketch on XZ plane
sketch6 = body.newObject("Sketcher::SketchObject", "Sketch005")
sketch6.AttachmentSupport = (doc.getObject("XZ_Plane"), [""])
sketch6.MapMode = "FlatFace"
sketch6.AttachmentOffset = App.Placement(Vector(0, 0, -40), App.Rotation())
sketch6.addGeometry([
    Part.Circle(Vector(-33.3, 24.5, 0), Vector(0, 0, 1), 3),  # 0
    Part.Circle(Vector(-33.3, 24.5, 0), Vector(0, 0, 1), 1.6),  # 1
    Part.Circle(Vector(-22.3, -24.5, 0), Vector(0, 0, 1), 3),  # 2
    Part.Circle(Vector(-22.3, -24.5, 0), Vector(0, 0, 1), 1.6),  # 3
    Part.Circle(Vector(-33.3, -24.5, 0), Vector(0, 0, 1), 3),  # 4
    Part.Circle(Vector(-22.3, 24.5, 0), Vector(0, 0, 1), 3),  # 5
], False)
sketch6.addConstraint([
    Sketcher.Constraint("Coincident", 1, 3, 0, 3),
    Sketcher.Constraint("Coincident", 3, 3, 2, 3),
    Sketcher.Constraint("Equal", 0, 2),
    Sketcher.Constraint("Equal", 1, 3),
    Sketcher.Constraint("Equal", 2, 4),
    Sketcher.Constraint("Equal", 4, 5),
    Sketcher.Constraint("Symmetric", 0, 3, 4, 3, -1),
    Sketcher.Constraint("Symmetric", 2, 3, 5, 3, -1),
    Sketcher.Constraint("Horizontal", 3, 3, 4, 3),
    Sketcher.Constraint("Diameter", 0, Q("6 mm")),
    Sketcher.Constraint("Diameter", 1, Q("3.2 mm")),
    Sketcher.Constraint("DistanceX", 0, 3, 2, 3, Q("11 mm")),
    Sketcher.Constraint("DistanceY", 2, 3, 0, 3, Q("49 mm")),
    Sketcher.Constraint("DistanceX", 0, 3, -1, 1, Q("33.262564 mm")),
])
sketch6.setExpression("Constraints[9]", "Params.sketch6_diameter")
sketch6.setExpression("Constraints[10]", "Params.sketch6_diameter2")
pad5 = body.newObject("PartDesign::Pad", "Pad004")
pad5.Profile = sketch6
pad5.setExpression("Length", "Params.pad5_length")

doc.recompute()
